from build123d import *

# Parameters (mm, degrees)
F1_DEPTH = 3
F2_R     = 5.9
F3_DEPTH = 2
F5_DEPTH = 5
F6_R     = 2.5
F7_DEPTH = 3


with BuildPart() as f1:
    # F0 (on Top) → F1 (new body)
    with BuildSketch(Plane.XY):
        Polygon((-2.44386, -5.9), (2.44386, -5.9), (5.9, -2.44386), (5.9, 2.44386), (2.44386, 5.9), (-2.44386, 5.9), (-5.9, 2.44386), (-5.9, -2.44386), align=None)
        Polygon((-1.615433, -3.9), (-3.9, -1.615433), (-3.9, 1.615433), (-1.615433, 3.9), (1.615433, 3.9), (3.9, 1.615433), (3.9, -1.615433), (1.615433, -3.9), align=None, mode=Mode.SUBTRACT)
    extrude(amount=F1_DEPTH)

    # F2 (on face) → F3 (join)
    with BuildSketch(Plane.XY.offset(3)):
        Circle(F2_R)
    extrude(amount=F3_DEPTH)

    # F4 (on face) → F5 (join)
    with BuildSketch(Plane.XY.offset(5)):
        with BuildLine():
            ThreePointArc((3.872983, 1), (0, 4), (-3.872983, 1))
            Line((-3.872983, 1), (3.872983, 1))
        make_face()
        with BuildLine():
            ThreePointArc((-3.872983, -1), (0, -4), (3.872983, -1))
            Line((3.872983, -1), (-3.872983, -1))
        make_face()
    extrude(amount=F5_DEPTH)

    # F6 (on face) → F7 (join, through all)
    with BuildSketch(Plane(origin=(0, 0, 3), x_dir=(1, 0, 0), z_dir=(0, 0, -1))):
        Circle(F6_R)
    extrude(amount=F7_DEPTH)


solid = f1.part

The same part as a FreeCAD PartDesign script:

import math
import FreeCAD as App
import Part
import Sketcher
from FreeCAD import Vector


def add_polygon(sketch, points):
    """Adds a closed chain of lines whose ends are joined by coincident constraints."""
    first, n = sketch.GeometryCount, len(points)
    for a, b in zip(points, points[1:] + points[:1]):
        sketch.addGeometry(Part.LineSegment(App.Vector(*a, 0), App.Vector(*b, 0)), False)
    for i in range(n):
        sketch.addConstraint(Sketcher.Constraint("Coincident", first + i, 2, first + (i + 1) % n, 1))

doc = App.newDocument("Part")
body = doc.addObject("PartDesign::Body", "Body")

sketch1 = body.newObject("Sketcher::SketchObject", "Sketch")
sketch1.AttachmentSupport = (doc.getObject("XY_Plane"), [""])
sketch1.MapMode = "FlatFace"
add_polygon(sketch1, [(-2.44386, -5.9), (2.44386, -5.9), (5.9, -2.44386), (5.9, 2.44386), (2.44386, 5.9), (-2.44386, 5.9), (-5.9, 2.44386), (-5.9, -2.44386)])
add_polygon(sketch1, [(1.615433, -3.9), (-1.615433, -3.9), (-3.9, -1.615433), (-3.9, 1.615433), (-1.615433, 3.9), (1.615433, 3.9), (3.9, 1.615433), (3.9, -1.615433)])
sketch1.addConstraint(Sketcher.Constraint("Horizontal", 0))
sketch1.addConstraint(Sketcher.Constraint("Vertical", 2))
sketch1.addConstraint(Sketcher.Constraint("Horizontal", 4))
sketch1.addConstraint(Sketcher.Constraint("Vertical", 6))
sketch1.addConstraint(Sketcher.Constraint("Horizontal", 8))
sketch1.addConstraint(Sketcher.Constraint("Vertical", 10))
sketch1.addConstraint(Sketcher.Constraint("Horizontal", 12))
sketch1.addConstraint(Sketcher.Constraint("Vertical", 14))
sketch1.addConstraint(Sketcher.Constraint("Symmetric", 0, 2, 4, 2, -1, 1))
sketch1.addConstraint(Sketcher.Constraint("Symmetric", 1, 2, 5, 2, -1, 1))
sketch1.addConstraint(Sketcher.Constraint("Symmetric", 8, 2, 12, 2, -1, 1))
sketch1.addConstraint(Sketcher.Constraint("Symmetric", 9, 2, 13, 2, -1, 1))
sketch1.addConstraint(Sketcher.Constraint("Perpendicular", 1, 3))
sketch1.addConstraint(Sketcher.Constraint("Perpendicular", 5, 7))
sketch1.addConstraint(Sketcher.Constraint("Parallel", 7, 9))
sketch1.addConstraint(Sketcher.Constraint("Perpendicular", 9, 11))
sketch1.addConstraint(Sketcher.Constraint("Perpendicular", 13, 15))
sketch1.addConstraint(Sketcher.Constraint("Horizontal", 2, 2, 5, 2))
sketch1.addConstraint(Sketcher.Constraint("Horizontal", 1, 2, 6, 2))
sketch1.addConstraint(Sketcher.Constraint("Horizontal", 10, 2, 13, 2))
sketch1.addConstraint(Sketcher.Constraint("Horizontal", 9, 2, 14, 2))
sketch1.addConstraint(Sketcher.Constraint("Vertical", 0, 2, 3, 2))
sketch1.addConstraint(Sketcher.Constraint("Equal", 4, 2))
sketch1.addConstraint(Sketcher.Constraint("Equal", 12, 10))
sketch1.addConstraint(Sketcher.Constraint("DistanceY", 7, 2, 8, 2, 2.0))
sketch1.addConstraint(Sketcher.Constraint("DistanceY", 0, 2, -1, 1, 5.9))
sketch1.addConstraint(Sketcher.Constraint("DistanceX", 0, 1, 0, 2, 4.88772))
sketch1.addConstraint(Sketcher.Constraint("DistanceX", 8, 2, 8, 1, 3.230866))
pad1 = body.newObject("PartDesign::Pad", "Pad")
pad1.Profile = sketch1
pad1.Length = 3

sketch2 = body.newObject("Sketcher::SketchObject", "Sketch001")
sketch2.AttachmentSupport = (doc.getObject("XY_Plane"), [""])
sketch2.MapMode = "FlatFace"
sketch2.AttachmentOffset = App.Placement(Vector(0, 0, 3), App.Rotation())
sketch2.addGeometry(Part.Circle(Vector(0, 0, 0), Vector(0, 0, 1), 5.9), False)
sketch2.addConstraint(Sketcher.Constraint("Coincident", 0, 3, -1, 1))
sketch2.addConstraint(Sketcher.Constraint("Diameter", 0, 11.8))
pad2 = body.newObject("PartDesign::Pad", "Pad001")
pad2.Profile = sketch2
pad2.Length = 2

sketch3 = body.newObject("Sketcher::SketchObject", "Sketch002")
sketch3.AttachmentSupport = (doc.getObject("XY_Plane"), [""])
sketch3.MapMode = "FlatFace"
sketch3.AttachmentOffset = App.Placement(Vector(0, 0, 5), App.Rotation())
sketch3.addGeometry(Part.ArcOfCircle(Part.Circle(Vector(0, 0, 0), Vector(0, 0, 1), 4), math.radians(14.477507), math.radians(165.522493)), False)
sketch3.addGeometry(Part.LineSegment(Vector(-3.872983, 1, 0), Vector(3.872983, 1, 0)), False)
sketch3.addGeometry(Part.ArcOfCircle(Part.Circle(Vector(0, 0, 0), Vector(0, 0, 1), 4), math.radians(-165.522493), math.radians(-14.477507)), False)
sketch3.addGeometry(Part.LineSegment(Vector(3.872983, -1, 0), Vector(-3.872983, -1, 0)), False)
sketch3.addConstraint(Sketcher.Constraint("Coincident", 0, 1, 1, 2))
sketch3.addConstraint(Sketcher.Constraint("Coincident", 1, 1, 0, 2))
sketch3.addConstraint(Sketcher.Constraint("Coincident", 2, 1, 3, 2))
sketch3.addConstraint(Sketcher.Constraint("Coincident", 3, 1, 2, 2))
sketch3.addConstraint(Sketcher.Constraint("Horizontal", 1))
sketch3.addConstraint(Sketcher.Constraint("Horizontal", 3))
sketch3.addConstraint(Sketcher.Constraint("Coincident", 0, 3, -1, 1))
sketch3.addConstraint(Sketcher.Constraint("Coincident", 2, 3, -1, 1))
sketch3.addConstraint(Sketcher.Constraint("Equal", 0, 2))
sketch3.addConstraint(Sketcher.Constraint("Vertical", 1, 1, 2, 1))
sketch3.addConstraint(Sketcher.Constraint("Radius", 0, 4.0))
sketch3.addConstraint(Sketcher.Constraint("DistanceY", -1, 1, 0, 1, 1.0))
pad3 = body.newObject("PartDesign::Pad", "Pad002")
pad3.Profile = sketch3
pad3.Length = 5

sketch4 = body.newObject("Sketcher::SketchObject", "Sketch003")
sketch4.AttachmentSupport = (doc.getObject("XY_Plane"), [""])
sketch4.MapMode = "FlatFace"
sketch4.AttachmentOffset = App.Placement(Vector(0, 0, 3), App.Rotation())
sketch4.addGeometry(Part.Circle(Vector(0, 0, 0), Vector(0, 0, 1), 2.5), False)
sketch4.addConstraint(Sketcher.Constraint("Coincident", 0, 3, -1, 1))
sketch4.addConstraint(Sketcher.Constraint("Diameter", 0, 5.0))
pad4 = body.newObject("PartDesign::Pad", "Pad003")
pad4.Profile = sketch4
pad4.Length = 3
pad4.Reversed = True

doc.recompute()
